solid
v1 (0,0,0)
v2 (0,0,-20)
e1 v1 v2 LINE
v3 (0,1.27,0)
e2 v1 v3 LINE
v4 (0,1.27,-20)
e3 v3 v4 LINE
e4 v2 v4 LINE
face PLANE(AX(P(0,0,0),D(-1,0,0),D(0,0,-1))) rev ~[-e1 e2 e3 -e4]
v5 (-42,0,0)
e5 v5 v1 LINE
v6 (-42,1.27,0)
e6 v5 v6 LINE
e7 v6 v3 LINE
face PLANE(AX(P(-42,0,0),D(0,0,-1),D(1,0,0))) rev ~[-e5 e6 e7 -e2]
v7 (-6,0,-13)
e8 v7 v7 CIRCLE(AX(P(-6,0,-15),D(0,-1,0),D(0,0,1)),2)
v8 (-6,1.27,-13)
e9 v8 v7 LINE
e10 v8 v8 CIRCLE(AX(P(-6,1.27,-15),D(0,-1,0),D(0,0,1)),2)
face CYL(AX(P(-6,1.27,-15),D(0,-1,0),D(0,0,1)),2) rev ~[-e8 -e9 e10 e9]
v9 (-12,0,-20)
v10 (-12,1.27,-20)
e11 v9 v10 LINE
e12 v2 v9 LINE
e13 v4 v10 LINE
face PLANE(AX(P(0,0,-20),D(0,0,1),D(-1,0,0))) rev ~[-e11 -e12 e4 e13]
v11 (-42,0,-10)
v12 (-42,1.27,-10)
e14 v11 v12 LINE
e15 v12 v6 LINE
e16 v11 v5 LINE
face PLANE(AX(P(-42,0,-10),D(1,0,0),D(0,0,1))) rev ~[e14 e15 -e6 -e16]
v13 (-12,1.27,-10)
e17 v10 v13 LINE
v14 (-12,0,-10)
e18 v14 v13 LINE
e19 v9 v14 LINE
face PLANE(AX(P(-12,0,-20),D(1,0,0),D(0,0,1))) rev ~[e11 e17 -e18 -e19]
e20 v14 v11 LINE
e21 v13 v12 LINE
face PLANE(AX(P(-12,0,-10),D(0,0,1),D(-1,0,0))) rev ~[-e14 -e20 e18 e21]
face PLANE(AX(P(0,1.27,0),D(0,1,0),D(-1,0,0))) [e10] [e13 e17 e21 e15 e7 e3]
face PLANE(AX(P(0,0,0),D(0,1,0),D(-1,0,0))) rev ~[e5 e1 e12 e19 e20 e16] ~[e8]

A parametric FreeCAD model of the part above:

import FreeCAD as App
import Part
import Sketcher
from FreeCAD import Vector


def add_polygon(sketch, points):
    """Adds a closed chain of lines whose ends are joined by coincident constraints."""
    first, n = sketch.GeometryCount, len(points)
    for a, b in zip(points, points[1:] + points[:1]):
        sketch.addGeometry(Part.LineSegment(App.Vector(*a, 0), App.Vector(*b, 0)), False)
    for i in range(n):
        sketch.addConstraint(Sketcher.Constraint("Coincident", first + i, 2, first + (i + 1) % n, 1))

doc = App.newDocument("Part")
params = doc.addObject("Spreadsheet::Sheet", "Params")
for row, (alias, value) in enumerate([
    ("sketch1_width", "42 mm"),
    ("sketch1_width2", "12 mm"),
    ("sketch1_height", "20 mm"),
    ("pad1_length", "1.27 mm"),
    ("sketch2_diameter", "4 mm"),
    ("hole_diameter", "4 mm"),
    ("hole_depth", "1.27 mm"),
], start=1):
    params.set(f"A{row}", alias)
    params.set(f"B{row}", "=" + value)
    params.setAlias(f"B{row}", alias)

body = doc.addObject("PartDesign::Body", "Body")

# Sketch on XZ plane
sketch1 = body.newObject("Sketcher::SketchObject", "Sketch")
sketch1.AttachmentSupport = (doc.getObject("XZ_Plane"), [""])
sketch1.MapMode = "FlatFace"
add_polygon(sketch1, [(-42, 0), (0, 0), (0, -20), (-12, -20), (-12, -10), (-42, -10)])  # lines 0-5
sketch1.addConstraint(Sketcher.Constraint("Horizontal", 0))
sketch1.addConstraint(Sketcher.Constraint("Vertical", 1))
sketch1.addConstraint(Sketcher.Constraint("Horizontal", 2))
sketch1.addConstraint(Sketcher.Constraint("Vertical", 3))
sketch1.addConstraint(Sketcher.Constraint("Horizontal", 4))
sketch1.addConstraint(Sketcher.Constraint("Vertical", 5))
sketch1.addConstraint(Sketcher.Constraint("Coincident", 0, 2, -1, 1))
sketch1.addConstraint(Sketcher.Constraint("Equal", 3, 5))
sketch1.addConstraint(Sketcher.Constraint("DistanceX", 0, 1, 0, 2, 42.0))
sketch1.addConstraint(Sketcher.Constraint("DistanceX", 2, 2, 2, 1, 12.0))
sketch1.addConstraint(Sketcher.Constraint("DistanceY", 1, 2, 1, 1, 20.0))
sketch1.setExpression("Constraints[14]", "Params.sketch1_width")
sketch1.setExpression("Constraints[15]", "Params.sketch1_width2")
sketch1.setExpression("Constraints[16]", "Params.sketch1_height")
pad1 = body.newObject("PartDesign::Pad", "Pad")
pad1.Profile = sketch1
pad1.setExpression("Length", "Params.pad1_length")
pad1.Reversed = True

# Sketch on XZ plane
sketch2 = body.newObject("Sketcher::SketchObject", "Sketch001")
sketch2.AttachmentSupport = (doc.getObject("XZ_Plane"), [""])
sketch2.MapMode = "FlatFace"
sketch2.AttachmentOffset = App.Placement(Vector(0, 0, -1.27), App.Rotation())
sketch2.addGeometry(Part.Circle(Vector(-6, -15, 0), Vector(0, 0, 1), 2), False)
sketch2.addConstraint(Sketcher.Constraint("Diameter", 0, 4.0))
sketch2.addConstraint(Sketcher.Constraint("DistanceX", 0, 3, -1, 1, 6.0))
sketch2.addConstraint(Sketcher.Constraint("DistanceY", 0, 3, -1, 1, 15.0))
sketch2.setExpression("Constraints[0]", "Params.sketch2_diameter")
doc.recompute()
hole = body.newObject("PartDesign::Hole", "Hole")
hole.Profile = sketch2
hole.ThreadType = "None"
hole.setExpression("Diameter", "Params.hole_diameter")
hole.DepthType = "Dimension"
hole.setExpression("Depth", "Params.hole_depth")
hole.DrillPoint = "Flat"
hole.Reversed = True

doc.recompute()
